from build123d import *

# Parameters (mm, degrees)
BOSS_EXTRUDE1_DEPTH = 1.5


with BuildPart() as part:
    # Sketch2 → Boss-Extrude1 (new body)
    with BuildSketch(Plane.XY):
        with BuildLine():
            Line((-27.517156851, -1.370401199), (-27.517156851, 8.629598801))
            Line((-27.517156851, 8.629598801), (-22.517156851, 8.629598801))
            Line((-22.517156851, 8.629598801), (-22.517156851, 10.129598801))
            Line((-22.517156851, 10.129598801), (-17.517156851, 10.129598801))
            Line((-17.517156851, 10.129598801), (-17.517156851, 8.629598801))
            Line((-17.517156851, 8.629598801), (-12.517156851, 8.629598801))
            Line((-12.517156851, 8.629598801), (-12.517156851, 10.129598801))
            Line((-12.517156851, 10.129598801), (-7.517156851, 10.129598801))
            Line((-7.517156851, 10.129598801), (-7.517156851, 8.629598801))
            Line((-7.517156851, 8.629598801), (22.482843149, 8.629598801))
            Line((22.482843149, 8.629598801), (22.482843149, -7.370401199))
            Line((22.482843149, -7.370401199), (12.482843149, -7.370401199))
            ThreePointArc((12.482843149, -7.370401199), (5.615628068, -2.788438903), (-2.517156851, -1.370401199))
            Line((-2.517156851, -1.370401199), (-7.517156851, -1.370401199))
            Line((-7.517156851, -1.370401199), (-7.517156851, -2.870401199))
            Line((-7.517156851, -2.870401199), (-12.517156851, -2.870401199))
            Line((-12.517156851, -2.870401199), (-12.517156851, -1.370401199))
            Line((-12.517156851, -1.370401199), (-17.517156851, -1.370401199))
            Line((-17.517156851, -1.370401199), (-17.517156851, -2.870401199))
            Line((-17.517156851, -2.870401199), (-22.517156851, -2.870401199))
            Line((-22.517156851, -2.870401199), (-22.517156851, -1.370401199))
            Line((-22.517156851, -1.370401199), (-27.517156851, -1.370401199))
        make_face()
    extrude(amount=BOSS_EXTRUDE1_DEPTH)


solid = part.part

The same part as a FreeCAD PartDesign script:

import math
import FreeCAD as App
import Part
import Sketcher

V = App.Vector

doc = App.newDocument("Part")
body = doc.addObject("PartDesign::Body", "Body")

sketch1 = doc.addObject("Sketcher::SketchObject", "Sketch")
body.addObject(sketch1)
sketch1.AttachmentSupport = (doc.XY_Plane, [""])
sketch1.MapMode = "FlatFace"
sketch1.addGeometry([
    Part.LineSegment(V(-27.5, 8.6, 0), V(-27.5, -1.4, 0)),
    Part.LineSegment(V(-27.5, -1.4, 0), V(-22.5, -1.4, 0)),
    Part.LineSegment(V(-22.5, -1.4, 0), V(-22.5, -2.9, 0)),
    Part.LineSegment(V(-22.5, -2.9, 0), V(-17.5, -2.9, 0)),
    Part.LineSegment(V(-17.5, -2.9, 0), V(-17.5, -1.4, 0)),
    Part.LineSegment(V(-17.5, -1.4, 0), V(-12.5, -1.4, 0)),
    Part.LineSegment(V(-12.5, -1.4, 0), V(-12.5, -2.9, 0)),
    Part.LineSegment(V(-12.5, -2.9, 0), V(-7.5, -2.9, 0)),
    Part.LineSegment(V(-7.5, -2.9, 0), V(-7.5, -1.4, 0)),
    Part.LineSegment(V(-7.5, -1.4, 0), V(-2.5, -1.4, 0)),
    Part.ArcOfCircle(Part.Circle(V(-1.8, -21.4, 0), V(0, 0, 1), 20), math.radians(44), math.radians(92)),
    Part.LineSegment(V(12.5, -7.4, 0), V(22.5, -7.4, 0)),
    Part.LineSegment(V(22.5, -7.4, 0), V(22.5, 8.6, 0)),
    Part.LineSegment(V(22.5, 8.6, 0), V(-7.5, 8.6, 0)),
    Part.LineSegment(V(-7.5, 8.6, 0), V(-7.5, 10.1, 0)),
    Part.LineSegment(V(-7.5, 10.1, 0), V(-12.5, 10.1, 0)),
    Part.LineSegment(V(-12.5, 10.1, 0), V(-12.5, 8.6, 0)),
    Part.LineSegment(V(-12.5, 8.6, 0), V(-17.5, 8.6, 0)),
    Part.LineSegment(V(-17.5, 8.6, 0), V(-17.5, 10.1, 0)),
    Part.LineSegment(V(-17.5, 10.1, 0), V(-22.5, 10.1, 0)),
    Part.LineSegment(V(-22.5, 10.1, 0), V(-22.5, 8.6, 0)),
    Part.LineSegment(V(-22.5, 8.6, 0), V(-27.5, 8.6, 0)),
], False)
sketch1.addConstraint([
    Sketcher.Constraint("Coincident", 0, 2, 1, 1),
    Sketcher.Constraint("Coincident", 1, 2, 2, 1),
    Sketcher.Constraint("Coincident", 2, 2, 3, 1),
    Sketcher.Constraint("Coincident", 3, 2, 4, 1),
    Sketcher.Constraint("Coincident", 4, 2, 5, 1),
    Sketcher.Constraint("Coincident", 5, 2, 6, 1),
    Sketcher.Constraint("Coincident", 6, 2, 7, 1),
    Sketcher.Constraint("Coincident", 7, 2, 8, 1),
    Sketcher.Constraint("Coincident", 8, 2, 9, 1),
    Sketcher.Constraint("Coincident", 9, 2, 10, 2),
    Sketcher.Constraint("Coincident", 10, 1, 11, 1),
    Sketcher.Constraint("Coincident", 11, 2, 12, 1),
    Sketcher.Constraint("Coincident", 12, 2, 13, 1),
    Sketcher.Constraint("Coincident", 13, 2, 14, 1),
    Sketcher.Constraint("Coincident", 14, 2, 15, 1),
    Sketcher.Constraint("Coincident", 15, 2, 16, 1),
    Sketcher.Constraint("Coincident", 16, 2, 17, 1),
    Sketcher.Constraint("Coincident", 17, 2, 18, 1),
    Sketcher.Constraint("Coincident", 18, 2, 19, 1),
    Sketcher.Constraint("Coincident", 19, 2, 20, 1),
    Sketcher.Constraint("Coincident", 20, 2, 21, 1),
    Sketcher.Constraint("Coincident", 21, 2, 0, 1),
    Sketcher.Constraint("Vertical", 0),
    Sketcher.Constraint("Horizontal", 1),
    Sketcher.Constraint("Vertical", 2),
    Sketcher.Constraint("Horizontal", 3),
    Sketcher.Constraint("Vertical", 4),
    Sketcher.Constraint("Horizontal", 5),
    Sketcher.Constraint("Vertical", 6),
    Sketcher.Constraint("Horizontal", 7),
    Sketcher.Constraint("Vertical", 8),
    Sketcher.Constraint("Horizontal", 9),
    Sketcher.Constraint("Horizontal", 11),
    Sketcher.Constraint("Vertical", 12),
    Sketcher.Constraint("Horizontal", 13),
    Sketcher.Constraint("Vertical", 14),
    Sketcher.Constraint("Horizontal", 15),
    Sketcher.Constraint("Vertical", 16),
    Sketcher.Constraint("Horizontal", 17),
    Sketcher.Constraint("Vertical", 18),
    Sketcher.Constraint("Horizontal", 19),
    Sketcher.Constraint("Vertical", 20),
    Sketcher.Constraint("Horizontal", 21),
    Sketcher.Constraint("Horizontal", 1, 2, 4, 2),
    Sketcher.Constraint("Horizontal", 3, 2, 6, 2),
    Sketcher.Constraint("Horizontal", 5, 2, 8, 2),
    Sketcher.Constraint("Horizontal", 13, 2, 16, 2),
    Sketcher.Constraint("Horizontal", 15, 2, 18, 2),
    Sketcher.Constraint("Horizontal", 17, 2, 20, 2),
    Sketcher.Constraint("Vertical", 8, 2, 13, 2),
    Sketcher.Constraint("Vertical", 6, 2, 15, 2),
    Sketcher.Constraint("Vertical", 4, 2, 17, 2),
    Sketcher.Constraint("Vertical", 2, 2, 19, 2),
    Sketcher.Constraint("Equal", 1, 3),
    Sketcher.Constraint("Equal", 3, 5),
    Sketcher.Constraint("Equal", 5, 7),
    Sketcher.Constraint("Equal", 7, 9),
    Sketcher.Constraint("Equal", 11, 0),
    Sketcher.Constraint("Equal", 8, 14),
    Sketcher.Constraint("Radius", 10, 20.0),
    Sketcher.Constraint("DistanceX", 1, 1, 1, 2, 5.0),
    Sketcher.Constraint("DistanceX", 11, 1, 11, 2, 10.0),
    Sketcher.Constraint("DistanceX", 13, 2, 13, 1, 30.0),
    Sketcher.Constraint("DistanceY", 12, 1, 12, 2, 16.0),
    Sketcher.Constraint("DistanceY", 2, 2, 2, 1, 1.5),
    Sketcher.Constraint("DistanceY", 0, 2, -1, 1, 1.370401),
    Sketcher.Constraint("DistanceX", 10, 3, -1, 1, 1.812185),
])
pad1 = doc.addObject("PartDesign::Pad", "Pad")
body.addObject(pad1)
pad1.Profile = sketch1
pad1.Length = 1.5

doc.recompute()
